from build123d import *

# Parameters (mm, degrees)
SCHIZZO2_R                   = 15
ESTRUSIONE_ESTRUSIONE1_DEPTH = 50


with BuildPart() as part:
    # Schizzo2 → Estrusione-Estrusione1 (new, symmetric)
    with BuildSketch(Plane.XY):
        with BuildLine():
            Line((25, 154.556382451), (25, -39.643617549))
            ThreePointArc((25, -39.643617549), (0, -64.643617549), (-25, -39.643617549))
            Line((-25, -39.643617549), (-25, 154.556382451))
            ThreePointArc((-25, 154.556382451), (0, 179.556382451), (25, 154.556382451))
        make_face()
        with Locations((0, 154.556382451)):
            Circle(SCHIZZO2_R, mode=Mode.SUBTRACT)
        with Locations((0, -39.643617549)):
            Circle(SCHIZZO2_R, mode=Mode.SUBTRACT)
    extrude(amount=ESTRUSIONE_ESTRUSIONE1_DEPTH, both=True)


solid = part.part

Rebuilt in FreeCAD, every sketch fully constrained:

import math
import FreeCAD as App
import Part
import Sketcher

doc = App.newDocument("Part")
body = doc.addObject("PartDesign::Body", "Body")

sketch1 = body.newObject("Sketcher::SketchObject", "Sketch")
sketch1.AttachmentSupport = (doc.getObject("XY_Plane"), [""])
sketch1.MapMode = "FlatFace"
sketch1.addGeometry(Part.LineSegment(App.Vector(25, -40, 0), App.Vector(25, 155, 0)), False)
sketch1.addGeometry(Part.ArcOfCircle(Part.Circle(App.Vector(0, 155, 0), App.Vector(0, 0, 1), 25), math.radians(0), math.radians(180)), False)
sketch1.addGeometry(Part.LineSegment(App.Vector(-25, 155, 0), App.Vector(-25, -40, 0)), False)
sketch1.addGeometry(Part.ArcOfCircle(Part.Circle(App.Vector(0, -40, 0), App.Vector(0, 0, 1), 25), math.radians(180), math.radians(360)), False)
sketch1.addGeometry(Part.Circle(App.Vector(0, -40, 0), App.Vector(0, 0, 1), 15), False)
sketch1.addGeometry(Part.Circle(App.Vector(0, 155, 0), App.Vector(0, 0, 1), 15), False)
sketch1.addConstraint(Sketcher.Constraint("Tangent", 0, 2, 1, 1))
sketch1.addConstraint(Sketcher.Constraint("Tangent", 1, 2, 2, 1))
sketch1.addConstraint(Sketcher.Constraint("Tangent", 2, 2, 3, 1))
sketch1.addConstraint(Sketcher.Constraint("Tangent", 3, 2, 0, 1))
sketch1.addConstraint(Sketcher.Constraint("Vertical", 0))
sketch1.addConstraint(Sketcher.Constraint("Vertical", 2))
sketch1.addConstraint(Sketcher.Constraint("Coincident", 4, 3, 3, 3))
sketch1.addConstraint(Sketcher.Constraint("Coincident", 5, 3, 1, 3))
sketch1.addConstraint(Sketcher.Constraint("Equal", 4, 5))
sketch1.addConstraint(Sketcher.Constraint("PointOnObject", 1, 3, -2))
sketch1.addConstraint(Sketcher.Constraint("Diameter", 4, 30.0))
sketch1.addConstraint(Sketcher.Constraint("Radius", 1, 25.0))
sketch1.addConstraint(Sketcher.Constraint("DistanceY", 0, 1, 0, 2, 194.2))
sketch1.addConstraint(Sketcher.Constraint("DistanceY", -1, 1, 1, 3, 154.556382))
pad1 = body.newObject("PartDesign::Pad", "Pad")
pad1.Profile = sketch1
pad1.Length = 100
pad1.Midplane = True

doc.recompute()
